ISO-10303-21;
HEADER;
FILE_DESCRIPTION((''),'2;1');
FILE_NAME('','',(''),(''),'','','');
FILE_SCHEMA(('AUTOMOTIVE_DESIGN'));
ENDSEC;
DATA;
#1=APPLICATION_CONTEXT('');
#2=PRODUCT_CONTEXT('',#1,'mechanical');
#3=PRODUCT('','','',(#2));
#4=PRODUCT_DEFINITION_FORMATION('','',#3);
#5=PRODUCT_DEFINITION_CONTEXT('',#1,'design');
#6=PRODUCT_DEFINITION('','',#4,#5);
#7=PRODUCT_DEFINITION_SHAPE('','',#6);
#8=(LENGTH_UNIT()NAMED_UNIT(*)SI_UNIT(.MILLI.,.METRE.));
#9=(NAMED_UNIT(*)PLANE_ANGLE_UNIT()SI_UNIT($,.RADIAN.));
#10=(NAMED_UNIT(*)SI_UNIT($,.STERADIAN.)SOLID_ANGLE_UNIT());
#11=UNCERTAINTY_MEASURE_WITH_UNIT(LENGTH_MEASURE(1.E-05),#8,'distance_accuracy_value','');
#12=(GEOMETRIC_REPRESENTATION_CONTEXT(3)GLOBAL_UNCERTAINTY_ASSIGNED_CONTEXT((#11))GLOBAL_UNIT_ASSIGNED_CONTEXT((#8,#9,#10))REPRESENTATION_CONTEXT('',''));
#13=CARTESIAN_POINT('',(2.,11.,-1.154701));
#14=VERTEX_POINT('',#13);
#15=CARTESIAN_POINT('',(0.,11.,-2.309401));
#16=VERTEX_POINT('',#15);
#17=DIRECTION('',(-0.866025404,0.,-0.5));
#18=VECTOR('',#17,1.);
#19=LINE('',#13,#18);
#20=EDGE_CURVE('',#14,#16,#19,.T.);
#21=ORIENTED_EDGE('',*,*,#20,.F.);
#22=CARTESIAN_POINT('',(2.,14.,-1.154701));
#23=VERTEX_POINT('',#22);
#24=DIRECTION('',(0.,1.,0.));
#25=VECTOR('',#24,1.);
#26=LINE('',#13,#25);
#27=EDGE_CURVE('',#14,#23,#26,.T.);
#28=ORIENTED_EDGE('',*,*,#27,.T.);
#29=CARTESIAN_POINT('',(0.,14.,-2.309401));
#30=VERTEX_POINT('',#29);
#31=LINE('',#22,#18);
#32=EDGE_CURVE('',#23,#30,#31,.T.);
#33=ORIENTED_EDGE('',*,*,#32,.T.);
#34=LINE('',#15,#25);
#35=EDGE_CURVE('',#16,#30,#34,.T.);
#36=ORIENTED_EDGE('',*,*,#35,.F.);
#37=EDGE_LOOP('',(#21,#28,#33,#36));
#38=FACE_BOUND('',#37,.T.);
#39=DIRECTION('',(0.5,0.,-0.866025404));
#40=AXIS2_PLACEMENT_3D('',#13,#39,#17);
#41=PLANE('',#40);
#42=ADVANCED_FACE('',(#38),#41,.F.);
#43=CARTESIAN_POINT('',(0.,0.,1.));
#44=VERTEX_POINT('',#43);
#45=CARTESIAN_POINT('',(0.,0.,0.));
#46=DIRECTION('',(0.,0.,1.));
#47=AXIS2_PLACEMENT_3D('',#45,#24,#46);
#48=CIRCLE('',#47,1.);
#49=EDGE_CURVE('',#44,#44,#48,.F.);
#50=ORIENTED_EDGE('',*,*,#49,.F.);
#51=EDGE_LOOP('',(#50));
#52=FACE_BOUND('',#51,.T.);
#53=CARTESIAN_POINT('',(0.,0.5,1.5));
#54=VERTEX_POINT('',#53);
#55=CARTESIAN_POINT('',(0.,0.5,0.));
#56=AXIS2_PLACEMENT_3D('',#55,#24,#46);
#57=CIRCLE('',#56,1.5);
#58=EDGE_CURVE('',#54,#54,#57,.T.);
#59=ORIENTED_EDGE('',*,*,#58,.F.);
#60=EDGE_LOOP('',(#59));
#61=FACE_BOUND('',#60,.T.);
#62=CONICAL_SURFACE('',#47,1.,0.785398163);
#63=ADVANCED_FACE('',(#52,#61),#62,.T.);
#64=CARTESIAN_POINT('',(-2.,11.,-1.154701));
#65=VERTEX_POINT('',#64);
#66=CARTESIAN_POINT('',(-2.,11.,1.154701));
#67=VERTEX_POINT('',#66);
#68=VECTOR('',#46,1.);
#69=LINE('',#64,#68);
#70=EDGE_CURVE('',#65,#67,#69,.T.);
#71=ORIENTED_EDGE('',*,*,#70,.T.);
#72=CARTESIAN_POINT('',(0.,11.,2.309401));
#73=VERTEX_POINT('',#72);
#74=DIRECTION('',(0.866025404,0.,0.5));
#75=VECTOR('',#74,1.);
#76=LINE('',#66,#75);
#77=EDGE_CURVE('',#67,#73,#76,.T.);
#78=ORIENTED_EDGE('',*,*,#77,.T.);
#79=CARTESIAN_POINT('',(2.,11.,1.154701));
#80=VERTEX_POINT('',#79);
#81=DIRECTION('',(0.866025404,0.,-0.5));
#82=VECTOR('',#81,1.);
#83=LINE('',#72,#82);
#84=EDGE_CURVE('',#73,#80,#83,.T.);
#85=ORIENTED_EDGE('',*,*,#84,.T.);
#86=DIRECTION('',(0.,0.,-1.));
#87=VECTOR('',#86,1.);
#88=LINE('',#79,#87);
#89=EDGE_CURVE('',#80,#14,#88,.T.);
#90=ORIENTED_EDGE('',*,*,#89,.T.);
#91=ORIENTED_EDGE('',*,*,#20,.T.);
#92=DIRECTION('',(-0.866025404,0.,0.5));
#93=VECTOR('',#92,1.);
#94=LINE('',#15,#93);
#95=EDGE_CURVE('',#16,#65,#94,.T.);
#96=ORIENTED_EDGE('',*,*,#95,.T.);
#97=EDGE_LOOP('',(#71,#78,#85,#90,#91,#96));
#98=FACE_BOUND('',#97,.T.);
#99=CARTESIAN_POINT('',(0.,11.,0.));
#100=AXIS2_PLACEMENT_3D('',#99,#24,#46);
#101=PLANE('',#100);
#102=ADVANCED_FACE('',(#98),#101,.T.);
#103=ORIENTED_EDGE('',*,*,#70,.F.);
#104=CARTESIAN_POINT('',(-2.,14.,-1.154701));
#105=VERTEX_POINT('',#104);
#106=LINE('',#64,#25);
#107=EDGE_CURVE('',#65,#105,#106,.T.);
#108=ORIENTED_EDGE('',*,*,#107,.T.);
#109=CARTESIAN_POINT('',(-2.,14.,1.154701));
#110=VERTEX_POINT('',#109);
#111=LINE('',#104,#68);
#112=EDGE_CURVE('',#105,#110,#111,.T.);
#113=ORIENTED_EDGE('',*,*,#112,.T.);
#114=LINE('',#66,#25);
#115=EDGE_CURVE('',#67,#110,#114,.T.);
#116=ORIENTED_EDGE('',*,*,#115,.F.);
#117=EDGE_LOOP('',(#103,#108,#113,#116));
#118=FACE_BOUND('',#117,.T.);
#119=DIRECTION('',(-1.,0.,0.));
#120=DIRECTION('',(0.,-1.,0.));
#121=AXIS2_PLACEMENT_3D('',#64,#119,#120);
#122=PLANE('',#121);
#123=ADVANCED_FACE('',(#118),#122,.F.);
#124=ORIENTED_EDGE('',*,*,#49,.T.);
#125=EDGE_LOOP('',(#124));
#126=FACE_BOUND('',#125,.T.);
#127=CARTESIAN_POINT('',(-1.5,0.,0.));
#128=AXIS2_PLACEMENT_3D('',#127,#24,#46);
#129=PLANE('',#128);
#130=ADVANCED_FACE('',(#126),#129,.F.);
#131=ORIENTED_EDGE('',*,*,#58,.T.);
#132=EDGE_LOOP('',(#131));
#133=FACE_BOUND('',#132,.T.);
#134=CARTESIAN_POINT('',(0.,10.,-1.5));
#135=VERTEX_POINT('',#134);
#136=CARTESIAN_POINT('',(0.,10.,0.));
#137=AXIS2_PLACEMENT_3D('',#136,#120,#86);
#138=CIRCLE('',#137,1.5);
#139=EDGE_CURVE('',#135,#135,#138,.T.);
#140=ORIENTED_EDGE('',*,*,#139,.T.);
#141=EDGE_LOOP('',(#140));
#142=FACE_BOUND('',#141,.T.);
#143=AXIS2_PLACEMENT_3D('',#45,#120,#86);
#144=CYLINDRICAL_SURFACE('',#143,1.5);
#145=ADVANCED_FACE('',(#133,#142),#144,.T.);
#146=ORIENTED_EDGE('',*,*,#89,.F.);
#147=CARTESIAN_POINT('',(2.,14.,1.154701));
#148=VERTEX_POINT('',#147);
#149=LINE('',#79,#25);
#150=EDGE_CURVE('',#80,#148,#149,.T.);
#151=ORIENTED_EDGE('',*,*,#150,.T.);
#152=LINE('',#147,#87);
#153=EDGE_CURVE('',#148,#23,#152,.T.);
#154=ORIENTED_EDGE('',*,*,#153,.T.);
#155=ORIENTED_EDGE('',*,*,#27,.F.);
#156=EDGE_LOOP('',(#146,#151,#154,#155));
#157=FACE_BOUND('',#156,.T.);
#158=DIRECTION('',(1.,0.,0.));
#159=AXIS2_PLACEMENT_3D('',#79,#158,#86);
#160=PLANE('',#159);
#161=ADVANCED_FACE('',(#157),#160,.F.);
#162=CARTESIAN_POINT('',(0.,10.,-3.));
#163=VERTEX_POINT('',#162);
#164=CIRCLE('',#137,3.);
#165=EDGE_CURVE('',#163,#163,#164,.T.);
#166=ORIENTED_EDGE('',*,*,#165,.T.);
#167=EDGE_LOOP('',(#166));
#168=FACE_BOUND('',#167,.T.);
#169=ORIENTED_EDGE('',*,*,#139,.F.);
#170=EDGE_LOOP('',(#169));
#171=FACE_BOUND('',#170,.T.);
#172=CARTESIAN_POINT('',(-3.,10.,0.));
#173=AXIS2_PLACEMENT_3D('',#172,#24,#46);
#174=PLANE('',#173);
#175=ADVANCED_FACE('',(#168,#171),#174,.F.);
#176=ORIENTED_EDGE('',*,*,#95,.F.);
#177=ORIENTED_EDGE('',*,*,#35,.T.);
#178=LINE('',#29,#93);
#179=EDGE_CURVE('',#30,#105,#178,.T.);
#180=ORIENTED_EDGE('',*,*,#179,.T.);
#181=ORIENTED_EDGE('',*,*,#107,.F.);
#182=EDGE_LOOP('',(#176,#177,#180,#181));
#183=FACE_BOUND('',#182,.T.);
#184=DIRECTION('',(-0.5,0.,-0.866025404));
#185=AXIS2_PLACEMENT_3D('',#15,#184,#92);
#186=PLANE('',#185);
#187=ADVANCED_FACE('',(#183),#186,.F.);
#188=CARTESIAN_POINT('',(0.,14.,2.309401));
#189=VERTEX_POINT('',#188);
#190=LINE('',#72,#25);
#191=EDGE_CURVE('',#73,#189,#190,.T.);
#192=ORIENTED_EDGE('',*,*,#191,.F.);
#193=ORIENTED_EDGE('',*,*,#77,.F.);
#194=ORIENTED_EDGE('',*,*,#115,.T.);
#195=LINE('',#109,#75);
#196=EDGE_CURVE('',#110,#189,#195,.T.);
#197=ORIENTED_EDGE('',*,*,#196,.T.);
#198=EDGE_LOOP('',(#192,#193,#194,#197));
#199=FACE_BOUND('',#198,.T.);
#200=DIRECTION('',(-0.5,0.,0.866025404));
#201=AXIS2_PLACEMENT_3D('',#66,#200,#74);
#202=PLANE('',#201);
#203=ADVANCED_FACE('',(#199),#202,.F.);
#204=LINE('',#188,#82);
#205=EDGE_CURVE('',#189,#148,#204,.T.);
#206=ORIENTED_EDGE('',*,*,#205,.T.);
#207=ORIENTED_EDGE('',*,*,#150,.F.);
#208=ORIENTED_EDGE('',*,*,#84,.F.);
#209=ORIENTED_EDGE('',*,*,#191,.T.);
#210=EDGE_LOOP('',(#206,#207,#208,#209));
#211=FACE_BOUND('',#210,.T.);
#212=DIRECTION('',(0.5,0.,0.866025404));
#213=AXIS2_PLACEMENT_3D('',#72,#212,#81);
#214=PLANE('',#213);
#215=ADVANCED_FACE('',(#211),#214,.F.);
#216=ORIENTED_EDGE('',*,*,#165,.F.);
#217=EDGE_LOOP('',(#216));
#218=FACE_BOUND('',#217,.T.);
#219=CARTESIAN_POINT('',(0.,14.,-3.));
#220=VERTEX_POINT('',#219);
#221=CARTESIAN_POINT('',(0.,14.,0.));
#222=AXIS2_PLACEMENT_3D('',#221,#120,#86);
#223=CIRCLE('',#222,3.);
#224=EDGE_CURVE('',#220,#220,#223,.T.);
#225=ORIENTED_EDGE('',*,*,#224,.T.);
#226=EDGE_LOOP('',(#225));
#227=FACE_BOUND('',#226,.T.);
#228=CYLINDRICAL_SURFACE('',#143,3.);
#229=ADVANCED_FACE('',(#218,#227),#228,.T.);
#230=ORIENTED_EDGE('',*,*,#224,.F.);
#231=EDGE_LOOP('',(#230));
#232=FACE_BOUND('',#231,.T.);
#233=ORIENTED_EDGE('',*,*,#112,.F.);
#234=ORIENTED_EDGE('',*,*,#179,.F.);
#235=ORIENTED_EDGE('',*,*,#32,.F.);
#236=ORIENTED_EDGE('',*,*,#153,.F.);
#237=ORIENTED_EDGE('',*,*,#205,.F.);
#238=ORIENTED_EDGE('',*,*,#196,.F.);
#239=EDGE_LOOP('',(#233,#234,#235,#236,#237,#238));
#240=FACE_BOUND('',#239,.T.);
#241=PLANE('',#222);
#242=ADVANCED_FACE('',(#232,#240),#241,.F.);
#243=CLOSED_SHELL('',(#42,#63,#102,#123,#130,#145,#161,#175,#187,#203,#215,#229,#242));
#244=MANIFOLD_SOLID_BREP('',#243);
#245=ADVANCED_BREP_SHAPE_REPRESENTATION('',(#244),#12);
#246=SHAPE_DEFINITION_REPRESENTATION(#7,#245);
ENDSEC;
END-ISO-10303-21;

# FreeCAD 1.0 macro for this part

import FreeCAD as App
import Part
import Sketcher
from FreeCAD import Vector
Q = App.Units.Quantity


def edges_at(feature, points):
    """Names of the edges that pass closest to the given points."""
    edges = feature.Shape.Edges
    near = lambda p: min(range(len(edges)), key=lambda i: edges[i].distToShape(Part.Vertex(*p))[0])
    return sorted({f"Edge{near(p) + 1}" for p in points})

doc = App.newDocument("Part")
body = doc.addObject("PartDesign::Body", "Body")

# Sketch on XY plane
sketch1 = body.newObject("Sketcher::SketchObject", "Sketch")
sketch1.AttachmentSupport = (doc.getObject("XY_Plane"), [""])
sketch1.MapMode = "FlatFace"
sketch1.addGeometry([
    Part.LineSegment(Vector(0, 14, 0), Vector(-3, 14, 0)),  # 0
    Part.LineSegment(Vector(-3, 14, 0), Vector(-3, 10, 0)),  # 1
    Part.LineSegment(Vector(-3, 10, 0), Vector(-1.5, 10, 0)),  # 2
    Part.LineSegment(Vector(-1.5, 10, 0), Vector(-1.5, 0, 0)),  # 3
    Part.LineSegment(Vector(-1.5, 0, 0), Vector(0, 0, 0)),  # 4
    Part.LineSegment(Vector(0, 0, 0), Vector(0, 14, 0)),  # 5
], False)
sketch1.addConstraint([
    Sketcher.Constraint("Coincident", 0, 2, 1, 1),
    Sketcher.Constraint("Coincident", 1, 2, 2, 1),
    Sketcher.Constraint("Coincident", 2, 2, 3, 1),
    Sketcher.Constraint("Coincident", 3, 2, 4, 1),
    Sketcher.Constraint("Coincident", 4, 2, 5, 1),
    Sketcher.Constraint("Coincident", 5, 2, 0, 1),
    Sketcher.Constraint("Horizontal", 0),
    Sketcher.Constraint("Vertical", 1),
    Sketcher.Constraint("Horizontal", 2),
    Sketcher.Constraint("Vertical", 3),
    Sketcher.Constraint("Horizontal", 4),
    Sketcher.Constraint("Vertical", 5),
    Sketcher.Constraint("Coincident", 4, 2, -1, 1),
    Sketcher.Constraint("Equal", 2, 4),
    Sketcher.Constraint("DistanceX", 0, 2, 0, 1, Q("3 mm")),
    Sketcher.Constraint("DistanceY", 1, 2, 1, 1, Q("4 mm")),
    Sketcher.Constraint("DistanceY", 3, 2, 3, 1, Q("10 mm")),
])
revolution = body.newObject("PartDesign::Revolution", "Revolution")
revolution.Profile = sketch1
revolution.ReferenceAxis = (sketch1, ["V_Axis"])
revolution.Angle = 360

# Sketch on XZ plane
sketch2 = body.newObject("Sketcher::SketchObject", "Sketch001")
sketch2.AttachmentSupport = (doc.getObject("XZ_Plane"), [""])
sketch2.MapMode = "FlatFace"
sketch2.AttachmentOffset = App.Placement(Vector(0, 0, -14), App.Rotation())
sketch2.addGeometry([
    Part.LineSegment(Vector(0, -2.3, 0), Vector(-2, -1.2, 0)),  # 0
    Part.LineSegment(Vector(-2, -1.2, 0), Vector(-2, 1.2, 0)),  # 1
    Part.LineSegment(Vector(-2, 1.2, 0), Vector(0, 2.3, 0)),  # 2
    Part.LineSegment(Vector(0, 2.3, 0), Vector(2, 1.2, 0)),  # 3
    Part.LineSegment(Vector(2, 1.2, 0), Vector(2, -1.2, 0)),  # 4
    Part.LineSegment(Vector(2, -1.2, 0), Vector(0, -2.3, 0)),  # 5
], False)
sketch2.addConstraint([
    Sketcher.Constraint("Coincident", 0, 2, 1, 1),
    Sketcher.Constraint("Coincident", 1, 2, 2, 1),
    Sketcher.Constraint("Coincident", 2, 2, 3, 1),
    Sketcher.Constraint("Coincident", 3, 2, 4, 1),
    Sketcher.Constraint("Coincident", 4, 2, 5, 1),
    Sketcher.Constraint("Coincident", 5, 2, 0, 1),
    Sketcher.Constraint("Vertical", 1),
    Sketcher.Constraint("Vertical", 4),
    Sketcher.Constraint("Symmetric", 0, 2, 3, 2, -1, 1),
    Sketcher.Constraint("Symmetric", 2, 2, 5, 2, -1, 1),
    Sketcher.Constraint("PointOnObject", 2, 2, -2),
    Sketcher.Constraint("Parallel", 2, 5),
    Sketcher.Constraint("Horizontal", 1, 2, 3, 2),
    Sketcher.Constraint("Angle", 0, Q("150 deg")),
    Sketcher.Constraint("DistanceX", 0, 2, -1, 1, Q("2 mm")),
    Sketcher.Constraint("DistanceY", 1, 1, 1, 2, Q("2.309401 mm")),
])
pocket1 = body.newObject("PartDesign::Pocket", "Pocket")
pocket1.Profile = sketch2
pocket1.Length = 3
pocket1.Reversed = True
doc.recompute()

chamfer = body.newObject("PartDesign::Chamfer", "Chamfer")
chamfer.Base = (pocket1, edges_at(pocket1, [(0, 0, 1.5)]))
chamfer.Size = 0.5

doc.recompute()
